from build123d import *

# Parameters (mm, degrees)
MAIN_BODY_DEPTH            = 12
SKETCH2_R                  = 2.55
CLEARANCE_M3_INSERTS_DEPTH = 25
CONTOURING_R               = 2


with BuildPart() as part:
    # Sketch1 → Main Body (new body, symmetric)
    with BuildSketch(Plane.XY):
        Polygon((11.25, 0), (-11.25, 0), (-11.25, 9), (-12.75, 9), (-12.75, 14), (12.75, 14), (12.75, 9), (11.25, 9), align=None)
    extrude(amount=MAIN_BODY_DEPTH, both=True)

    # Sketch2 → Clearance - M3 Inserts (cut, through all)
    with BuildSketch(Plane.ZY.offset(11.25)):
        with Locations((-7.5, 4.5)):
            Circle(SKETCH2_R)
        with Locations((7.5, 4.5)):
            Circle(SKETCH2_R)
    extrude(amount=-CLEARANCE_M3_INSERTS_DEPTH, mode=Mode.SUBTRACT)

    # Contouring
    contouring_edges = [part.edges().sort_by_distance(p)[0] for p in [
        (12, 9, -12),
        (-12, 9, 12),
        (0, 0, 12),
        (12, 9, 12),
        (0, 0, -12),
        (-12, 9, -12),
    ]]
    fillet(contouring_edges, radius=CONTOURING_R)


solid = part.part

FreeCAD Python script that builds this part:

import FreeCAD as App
import Part
import Sketcher
from FreeCAD import Vector


def edges_at(feature, points):
    """Names of the edges that pass closest to the given points."""
    edges = feature.Shape.Edges
    near = lambda p: min(range(len(edges)), key=lambda i: edges[i].distToShape(Part.Vertex(*p))[0])
    return sorted({f"Edge{near(p) + 1}" for p in points})


def add_polygon(sketch, points):
    """Adds a closed chain of lines whose ends are joined by coincident constraints."""
    first, n = sketch.GeometryCount, len(points)
    for a, b in zip(points, points[1:] + points[:1]):
        sketch.addGeometry(Part.LineSegment(App.Vector(*a, 0), App.Vector(*b, 0)), False)
    for i in range(n):
        sketch.addConstraint(Sketcher.Constraint("Coincident", first + i, 2, first + (i + 1) % n, 1))

doc = App.newDocument("Part")
params = doc.addObject("Spreadsheet::Sheet", "Params")
for row, (alias, value) in enumerate([
    ("sketch1_height", "9 mm"),
    ("sketch1_height2", "5 mm"),
    ("sketch1_width", "22.5 mm"),
    ("sketch1_width2", "1.5 mm"),
    ("pad1_length", "24 mm"),
    ("sketch2_diameter", "5.1 mm"),
    ("fillet_radius", "2 mm"),
], start=1):
    params.set(f"A{row}", alias)
    params.set(f"B{row}", "=" + value)
    params.setAlias(f"B{row}", alias)

body = doc.addObject("PartDesign::Body", "Body")

# Sketch on XY plane
sketch1 = body.newObject("Sketcher::SketchObject", "Sketch")
sketch1.AttachmentSupport = (doc.getObject("XY_Plane"), [""])
sketch1.MapMode = "FlatFace"
add_polygon(sketch1, [(-11.25, 0), (11.25, 0), (11.25, 9), (12.75, 9), (12.75, 14), (-12.75, 14), (-12.75, 9), (-11.25, 9)])  # lines 0-7
sketch1.addConstraint([
    Sketcher.Constraint("Horizontal", 0),
    Sketcher.Constraint("Vertical", 1),
    Sketcher.Constraint("Horizontal", 2),
    Sketcher.Constraint("Vertical", 3),
    Sketcher.Constraint("Horizontal", 4),
    Sketcher.Constraint("Vertical", 5),
    Sketcher.Constraint("Horizontal", 6),
    Sketcher.Constraint("Vertical", 7),
    Sketcher.Constraint("Symmetric", 0, 2, 7, 2, -1, 1),
    Sketcher.Constraint("Symmetric", 2, 2, 5, 2, -2),
    Sketcher.Constraint("DistanceY", 1, 1, 1, 2, 9.0),
    Sketcher.Constraint("DistanceY", 3, 1, 3, 2, 5.0),
    Sketcher.Constraint("DistanceX", 0, 1, 0, 2, 22.5),
    Sketcher.Constraint("DistanceX", 2, 1, 2, 2, 1.5),
])
sketch1.setExpression("Constraints[18]", "Params.sketch1_height")
sketch1.setExpression("Constraints[19]", "Params.sketch1_height2")
sketch1.setExpression("Constraints[20]", "Params.sketch1_width")
sketch1.setExpression("Constraints[21]", "Params.sketch1_width2")
pad1 = body.newObject("PartDesign::Pad", "Pad")
pad1.Profile = sketch1
pad1.setExpression("Length", "Params.pad1_length")
pad1.Midplane = True

# Sketch on YZ plane
sketch2 = body.newObject("Sketcher::SketchObject", "Sketch001")
sketch2.AttachmentSupport = (doc.getObject("YZ_Plane"), [""])
sketch2.MapMode = "FlatFace"
sketch2.AttachmentOffset = App.Placement(Vector(0, 0, -11.25), App.Rotation())
sketch2.addGeometry([
    Part.Circle(Vector(4.5, -7.5, 0), Vector(0, 0, 1), 2.55),
    Part.Circle(Vector(4.5, 7.5, 0), Vector(0, 0, 1), 2.55),
], False)
sketch2.addConstraint([
    Sketcher.Constraint("Equal", 0, 1),
    Sketcher.Constraint("Symmetric", 0, 3, 1, 3, -1),
    Sketcher.Constraint("Diameter", 0, 5.1),
    Sketcher.Constraint("DistanceY", 0, 3, 1, 3, 15.0),
    Sketcher.Constraint("DistanceX", -1, 1, 0, 3, 4.5),
])
sketch2.setExpression("Constraints[2]", "Params.sketch2_diameter")
pocket1 = body.newObject("PartDesign::Pocket", "Pocket")
pocket1.Profile = sketch2
pocket1.Type = "ThroughAll"
pocket1.Reversed = True
doc.recompute()

fillet = body.newObject("PartDesign::Fillet", "Fillet")
fillet.Base = (pocket1, edges_at(pocket1, [
    (12, 9, -12),
    (-12, 9, 12),
    (0, 0, 12),
    (12, 9, 12),
    (0, 0, -12),
    (-12, 9, -12),
]))
fillet.setExpression("Radius", "Params.fillet_radius")

doc.recompute()
